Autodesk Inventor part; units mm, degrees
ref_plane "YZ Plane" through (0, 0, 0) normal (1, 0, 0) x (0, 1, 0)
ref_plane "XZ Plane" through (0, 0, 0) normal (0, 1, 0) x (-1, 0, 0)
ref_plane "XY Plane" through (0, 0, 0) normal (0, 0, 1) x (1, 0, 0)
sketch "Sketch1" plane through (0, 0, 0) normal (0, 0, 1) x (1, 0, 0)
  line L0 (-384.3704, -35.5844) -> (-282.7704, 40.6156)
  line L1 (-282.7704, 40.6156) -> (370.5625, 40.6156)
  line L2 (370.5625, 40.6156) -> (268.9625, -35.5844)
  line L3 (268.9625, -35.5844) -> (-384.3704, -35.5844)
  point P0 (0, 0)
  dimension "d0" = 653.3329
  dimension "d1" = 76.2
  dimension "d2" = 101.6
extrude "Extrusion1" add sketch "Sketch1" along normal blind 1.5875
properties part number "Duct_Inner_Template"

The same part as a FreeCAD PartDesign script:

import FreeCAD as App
import Part
import Sketcher
Q = App.Units.Quantity


def add_polygon(sketch, points):
    """Adds a closed chain of lines whose ends are joined by coincident constraints."""
    first, n = sketch.GeometryCount, len(points)
    for a, b in zip(points, points[1:] + points[:1]):
        sketch.addGeometry(Part.LineSegment(App.Vector(*a, 0), App.Vector(*b, 0)), False)
    for i in range(n):
        sketch.addConstraint(Sketcher.Constraint("Coincident", first + i, 2, first + (i + 1) % n, 1))

doc = App.newDocument("Part")
body = doc.addObject("PartDesign::Body", "Body")

# Sketch on XY plane
sketch1 = doc.addObject("Sketcher::SketchObject", "Sketch")
body.addObject(sketch1)
sketch1.AttachmentSupport = (doc.XY_Plane, [""])
sketch1.MapMode = "FlatFace"
add_polygon(sketch1, [(-282.7704, 40.6156), (-384.3704, -35.5844), (268.9625, -35.5844), (370.5625, 40.6156)])  # lines 0-3
sketch1.addConstraint(Sketcher.Constraint("Horizontal", 1))
sketch1.addConstraint(Sketcher.Constraint("Horizontal", 3))
sketch1.addConstraint(Sketcher.Constraint("Parallel", 0, 2))
sketch1.addConstraint(Sketcher.Constraint("DistanceX", 1, 2, 2, 2, Q("4 in")))
sketch1.addConstraint(Sketcher.Constraint("DistanceY", 1, 2, 2, 2, Q("3 in")))
sketch1.addConstraint(Sketcher.Constraint("DistanceX", 1, 1, 1, 2, 653.333))
sketch1.addConstraint(Sketcher.Constraint("DistanceX", 0, 2, -1, 1, Q("15.1327 in")))
sketch1.addConstraint(Sketcher.Constraint("DistanceY", 0, 2, -1, 1, 35.5844))
pad1 = doc.addObject("PartDesign::Pad", "Pad")
body.addObject(pad1)
pad1.Profile = sketch1
pad1.Length = Q("0.0625 in")

doc.recompute()
